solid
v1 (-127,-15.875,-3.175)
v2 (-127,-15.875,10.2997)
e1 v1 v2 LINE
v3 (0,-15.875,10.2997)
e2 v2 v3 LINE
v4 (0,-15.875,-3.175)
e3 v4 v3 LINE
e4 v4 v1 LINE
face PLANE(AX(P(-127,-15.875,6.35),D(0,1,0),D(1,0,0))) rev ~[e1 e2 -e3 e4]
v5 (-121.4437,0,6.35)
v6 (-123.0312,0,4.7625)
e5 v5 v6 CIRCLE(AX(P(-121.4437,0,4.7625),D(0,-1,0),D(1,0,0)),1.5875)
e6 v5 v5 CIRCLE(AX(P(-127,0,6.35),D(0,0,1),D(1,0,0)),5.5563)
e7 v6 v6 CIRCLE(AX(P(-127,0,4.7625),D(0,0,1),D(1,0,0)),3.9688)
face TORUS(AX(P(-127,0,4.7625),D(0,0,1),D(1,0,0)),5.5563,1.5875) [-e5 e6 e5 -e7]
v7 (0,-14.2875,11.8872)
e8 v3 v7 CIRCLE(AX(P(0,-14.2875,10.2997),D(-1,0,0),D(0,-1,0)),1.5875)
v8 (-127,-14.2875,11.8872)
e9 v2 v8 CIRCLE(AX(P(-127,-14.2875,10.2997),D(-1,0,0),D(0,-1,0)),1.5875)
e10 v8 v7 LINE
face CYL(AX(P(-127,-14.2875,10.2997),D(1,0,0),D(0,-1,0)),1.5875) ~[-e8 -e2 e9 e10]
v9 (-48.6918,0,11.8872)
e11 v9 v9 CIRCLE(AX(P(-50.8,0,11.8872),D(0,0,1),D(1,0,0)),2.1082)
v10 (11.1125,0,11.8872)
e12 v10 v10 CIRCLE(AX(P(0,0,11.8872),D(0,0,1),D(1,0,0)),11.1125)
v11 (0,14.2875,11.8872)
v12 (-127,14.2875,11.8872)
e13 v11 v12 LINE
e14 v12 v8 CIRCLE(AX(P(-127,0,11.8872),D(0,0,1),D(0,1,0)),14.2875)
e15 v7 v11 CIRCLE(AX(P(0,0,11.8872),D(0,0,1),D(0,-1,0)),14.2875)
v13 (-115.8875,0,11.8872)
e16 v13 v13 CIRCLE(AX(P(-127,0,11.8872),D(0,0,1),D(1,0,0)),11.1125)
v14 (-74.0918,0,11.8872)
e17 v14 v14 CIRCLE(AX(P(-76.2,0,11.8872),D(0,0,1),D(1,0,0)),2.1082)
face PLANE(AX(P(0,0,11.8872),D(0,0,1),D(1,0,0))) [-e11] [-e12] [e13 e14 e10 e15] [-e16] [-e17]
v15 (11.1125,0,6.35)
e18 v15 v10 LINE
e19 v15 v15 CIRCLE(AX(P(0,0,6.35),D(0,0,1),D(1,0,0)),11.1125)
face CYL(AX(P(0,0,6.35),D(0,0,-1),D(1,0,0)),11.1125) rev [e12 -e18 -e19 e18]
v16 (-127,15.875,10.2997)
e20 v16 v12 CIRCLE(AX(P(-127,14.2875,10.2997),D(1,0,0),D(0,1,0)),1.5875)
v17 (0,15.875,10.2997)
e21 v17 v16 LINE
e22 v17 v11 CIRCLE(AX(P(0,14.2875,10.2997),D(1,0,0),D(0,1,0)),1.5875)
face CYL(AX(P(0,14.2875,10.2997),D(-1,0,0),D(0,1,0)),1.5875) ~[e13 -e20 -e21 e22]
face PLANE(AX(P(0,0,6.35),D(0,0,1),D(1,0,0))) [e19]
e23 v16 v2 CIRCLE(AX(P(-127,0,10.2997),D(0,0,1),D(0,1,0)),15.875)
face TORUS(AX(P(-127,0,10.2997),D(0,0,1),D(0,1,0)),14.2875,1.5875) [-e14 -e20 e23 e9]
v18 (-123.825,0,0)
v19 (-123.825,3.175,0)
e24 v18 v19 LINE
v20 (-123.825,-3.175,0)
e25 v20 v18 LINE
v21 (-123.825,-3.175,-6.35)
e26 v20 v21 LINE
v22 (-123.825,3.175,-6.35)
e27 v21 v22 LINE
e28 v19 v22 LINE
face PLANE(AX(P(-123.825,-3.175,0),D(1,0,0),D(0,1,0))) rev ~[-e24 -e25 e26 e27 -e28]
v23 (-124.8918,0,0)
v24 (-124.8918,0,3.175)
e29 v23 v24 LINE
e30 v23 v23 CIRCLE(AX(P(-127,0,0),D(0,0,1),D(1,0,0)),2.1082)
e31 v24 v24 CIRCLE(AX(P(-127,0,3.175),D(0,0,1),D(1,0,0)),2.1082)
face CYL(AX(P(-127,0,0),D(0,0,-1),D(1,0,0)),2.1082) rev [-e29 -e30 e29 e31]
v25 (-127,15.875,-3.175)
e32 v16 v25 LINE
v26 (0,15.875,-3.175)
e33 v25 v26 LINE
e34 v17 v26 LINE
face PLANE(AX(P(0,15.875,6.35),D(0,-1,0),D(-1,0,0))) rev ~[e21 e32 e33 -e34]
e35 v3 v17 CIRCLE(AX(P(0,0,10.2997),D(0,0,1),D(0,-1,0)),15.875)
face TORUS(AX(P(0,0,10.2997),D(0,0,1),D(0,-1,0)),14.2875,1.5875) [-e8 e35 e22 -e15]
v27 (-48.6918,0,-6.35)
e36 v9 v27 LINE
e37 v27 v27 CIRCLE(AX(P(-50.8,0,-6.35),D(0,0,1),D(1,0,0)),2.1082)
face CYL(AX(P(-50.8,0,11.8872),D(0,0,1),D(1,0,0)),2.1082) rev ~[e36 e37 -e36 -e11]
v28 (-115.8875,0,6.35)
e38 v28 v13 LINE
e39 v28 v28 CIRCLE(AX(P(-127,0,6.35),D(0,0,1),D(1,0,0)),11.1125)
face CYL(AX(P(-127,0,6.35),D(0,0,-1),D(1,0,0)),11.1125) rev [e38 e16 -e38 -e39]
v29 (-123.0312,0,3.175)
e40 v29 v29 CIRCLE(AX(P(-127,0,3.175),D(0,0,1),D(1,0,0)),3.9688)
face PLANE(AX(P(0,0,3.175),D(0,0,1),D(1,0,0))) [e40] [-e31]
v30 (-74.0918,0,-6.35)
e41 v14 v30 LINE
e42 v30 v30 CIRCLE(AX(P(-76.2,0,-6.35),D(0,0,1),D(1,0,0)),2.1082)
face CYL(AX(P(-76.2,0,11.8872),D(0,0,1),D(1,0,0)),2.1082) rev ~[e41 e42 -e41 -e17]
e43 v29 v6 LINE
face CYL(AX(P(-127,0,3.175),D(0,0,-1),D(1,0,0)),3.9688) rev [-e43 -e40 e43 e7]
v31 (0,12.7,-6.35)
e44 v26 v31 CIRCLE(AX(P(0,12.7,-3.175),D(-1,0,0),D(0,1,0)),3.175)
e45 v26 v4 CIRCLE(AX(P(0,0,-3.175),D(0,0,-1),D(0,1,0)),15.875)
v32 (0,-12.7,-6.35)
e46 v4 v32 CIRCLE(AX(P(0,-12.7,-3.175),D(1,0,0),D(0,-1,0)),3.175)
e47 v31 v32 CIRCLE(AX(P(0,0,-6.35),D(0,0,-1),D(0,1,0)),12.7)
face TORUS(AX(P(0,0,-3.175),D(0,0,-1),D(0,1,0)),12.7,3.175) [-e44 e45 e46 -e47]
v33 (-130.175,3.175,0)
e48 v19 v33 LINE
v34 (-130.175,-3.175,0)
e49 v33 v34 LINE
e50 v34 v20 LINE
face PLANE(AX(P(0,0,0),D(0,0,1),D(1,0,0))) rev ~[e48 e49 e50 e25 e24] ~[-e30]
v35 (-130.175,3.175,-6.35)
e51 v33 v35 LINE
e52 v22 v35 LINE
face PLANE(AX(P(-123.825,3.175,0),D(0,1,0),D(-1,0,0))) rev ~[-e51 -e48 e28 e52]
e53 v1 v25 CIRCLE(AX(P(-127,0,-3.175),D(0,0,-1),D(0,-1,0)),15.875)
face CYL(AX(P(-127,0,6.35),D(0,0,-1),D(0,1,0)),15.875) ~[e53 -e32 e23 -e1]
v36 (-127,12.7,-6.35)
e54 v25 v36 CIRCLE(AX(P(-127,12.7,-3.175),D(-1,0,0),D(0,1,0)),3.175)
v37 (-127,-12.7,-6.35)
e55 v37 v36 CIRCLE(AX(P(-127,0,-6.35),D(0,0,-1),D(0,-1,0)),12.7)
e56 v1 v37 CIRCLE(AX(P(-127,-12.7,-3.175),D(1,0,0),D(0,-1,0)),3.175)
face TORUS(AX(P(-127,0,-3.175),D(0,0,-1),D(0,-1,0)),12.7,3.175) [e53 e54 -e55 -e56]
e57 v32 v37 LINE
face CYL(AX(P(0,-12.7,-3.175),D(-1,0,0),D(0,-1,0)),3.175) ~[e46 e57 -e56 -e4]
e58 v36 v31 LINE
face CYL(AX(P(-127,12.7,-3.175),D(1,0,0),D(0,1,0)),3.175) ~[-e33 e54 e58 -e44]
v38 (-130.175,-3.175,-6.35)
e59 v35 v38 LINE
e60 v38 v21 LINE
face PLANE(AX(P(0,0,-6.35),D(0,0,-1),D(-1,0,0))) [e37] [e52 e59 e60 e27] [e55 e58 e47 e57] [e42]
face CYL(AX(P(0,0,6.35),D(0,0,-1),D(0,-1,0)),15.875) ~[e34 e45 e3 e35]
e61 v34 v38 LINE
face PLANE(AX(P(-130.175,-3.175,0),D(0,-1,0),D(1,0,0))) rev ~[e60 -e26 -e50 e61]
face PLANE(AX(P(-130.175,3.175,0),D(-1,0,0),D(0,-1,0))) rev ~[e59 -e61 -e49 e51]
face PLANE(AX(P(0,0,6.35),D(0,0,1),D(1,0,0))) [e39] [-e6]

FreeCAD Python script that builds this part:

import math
import FreeCAD as App
import Part
import Sketcher

V = App.Vector
Q = App.Units.Quantity


def edges_at(feature, points):
    """Names of the edges that pass closest to the given points."""
    edges = feature.Shape.Edges
    near = lambda p: min(range(len(edges)), key=lambda i: edges[i].distToShape(Part.Vertex(*p))[0])
    return sorted({f"Edge{near(p) + 1}" for p in points})


def add_polygon(sketch, points):
    """Adds a closed chain of lines whose ends are joined by coincident constraints."""
    first, n = sketch.GeometryCount, len(points)
    for a, b in zip(points, points[1:] + points[:1]):
        sketch.addGeometry(Part.LineSegment(App.Vector(*a, 0), App.Vector(*b, 0)), False)
    for i in range(n):
        sketch.addConstraint(Sketcher.Constraint("Coincident", first + i, 2, first + (i + 1) % n, 1))

doc = App.newDocument("Part")
body = doc.addObject("PartDesign::Body", "Body")

sketch1 = body.newObject("Sketcher::SketchObject", "Sketch")
sketch1.AttachmentSupport = (doc.getObject("XY_Plane"), [""])
sketch1.MapMode = "FlatFace"
sketch1.addGeometry([
    Part.ArcOfCircle(Part.Circle(V(0, 0, 0), V(0, 0, 1), 15.9), math.radians(-90), math.radians(90)),
    Part.LineSegment(V(0, 15.9, 0), V(-127, 15.9, 0)),
    Part.ArcOfCircle(Part.Circle(V(-127, 0, 0), V(0, 0, 1), 15.9), math.radians(90), math.radians(270)),
    Part.LineSegment(V(-127, -15.9, 0), V(0, -15.9, 0)),
    Part.Circle(V(-127, 0, 0), V(0, 0, 1), 2.1),
], False)
sketch1.addConstraint([
    Sketcher.Constraint("Tangent", 0, 2, 1, 1),
    Sketcher.Constraint("Tangent", 1, 2, 2, 1),
    Sketcher.Constraint("Tangent", 2, 2, 3, 1),
    Sketcher.Constraint("Tangent", 3, 2, 0, 1),
    Sketcher.Constraint("Horizontal", 1),
    Sketcher.Constraint("Horizontal", 3),
    Sketcher.Constraint("Coincident", 0, 3, -1, 1),
    Sketcher.Constraint("Coincident", 4, 3, 2, 3),
    Sketcher.Constraint("DistanceX", 1, 2, 1, 1, Q("5 in")),
    Sketcher.Constraint("Diameter", 4, Q("0.166 in")),
    Sketcher.Constraint("Radius", 0, Q("0.625 in")),
])
pad1 = body.newObject("PartDesign::Pad", "Pad")
pad1.Profile = sketch1
pad1.Length = Q("0.125 in")

sketch2 = body.newObject("Sketcher::SketchObject", "Sketch001")
sketch2.AttachmentSupport = (doc.getObject("XY_Plane"), [""])
sketch2.MapMode = "FlatFace"
sketch2.addGeometry(Part.LineSegment(V(0, -16, 0), V(-127, -16, 0)), False)
sketch2.addGeometry(Part.ArcOfCircle(Part.Circle(V(-127, 0, 0), V(0, 0, 1), 16), math.radians(90), math.radians(270)), False)
sketch2.addGeometry(Part.LineSegment(V(-127, 16, 0), V(0, 16, 0)), False)
sketch2.addGeometry(Part.ArcOfCircle(Part.Circle(V(0, 0, 0), V(0, 0, 1), 16), math.radians(-90), math.radians(90)), False)
add_polygon(sketch2, [(-130, 3), (-130, -3), (-124, -3), (-124, 3)])
sketch2.addConstraint([
    Sketcher.Constraint("Tangent", 0, 2, 1, 2),
    Sketcher.Constraint("Tangent", 1, 1, 2, 1),
    Sketcher.Constraint("Tangent", 2, 2, 3, 2),
    Sketcher.Constraint("Tangent", 3, 1, 0, 1),
    Sketcher.Constraint("Horizontal", 0),
    Sketcher.Constraint("Horizontal", 2),
    Sketcher.Constraint("Vertical", 4),
    Sketcher.Constraint("Horizontal", 5),
    Sketcher.Constraint("Vertical", 6),
    Sketcher.Constraint("Horizontal", 7),
    Sketcher.Constraint("Coincident", 3, 3, -1, 1),
    Sketcher.Constraint("Equal", 7, 4),
    Sketcher.Constraint("DistanceX", 5, 1, 5, 2, Q("0.25 in")),
    Sketcher.Constraint("DistanceX", 0, 2, 0, 1, Q("5 in")),
    Sketcher.Constraint("Radius", 1, Q("0.625 in")),
    Sketcher.Constraint("DistanceY", 0, 2, 4, 2, Q("0.5 in")),
    Sketcher.Constraint("DistanceX", 4, 2, -1, 1, Q("5.125 in")),
])
pad2 = body.newObject("PartDesign::Pad", "Pad001")
pad2.Profile = sketch2
pad2.Length = Q("0.25 in")
pad2.Reversed = True
doc.recompute()

fillet = body.newObject("PartDesign::Fillet", "Fillet")
fillet.Base = (pad2, edges_at(pad2, [
    (15.875, 0, -6.35),
    (-63.5, -15.875, -6.35),
    (-142.875, 0, -6.35),
    (-63.5, 15.875, -6.35),
]))
fillet.Radius = Q("0.125 in")

sketch3 = body.newObject("Sketcher::SketchObject", "Sketch002")
sketch3.AttachmentSupport = (doc.getObject("XY_Plane"), [""])
sketch3.MapMode = "FlatFace"
sketch3.AttachmentOffset = App.Placement(V(0, 0, 0.125 * 25.4), App.Rotation())
sketch3.addGeometry([
    Part.LineSegment(V(0, 15.9, 0), V(-127, 15.9, 0)),
    Part.ArcOfCircle(Part.Circle(V(-127, 0, 0), V(0, 0, 1), 15.9), math.radians(90), math.radians(270)),
    Part.LineSegment(V(-127, -15.9, 0), V(0, -15.9, 0)),
    Part.ArcOfCircle(Part.Circle(V(0, 0, 0), V(0, 0, 1), 15.9), math.radians(-90), math.radians(90)),
    Part.Circle(V(-127, 0, 0), V(0, 0, 1), 4),
], False)
sketch3.addConstraint([
    Sketcher.Constraint("Tangent", 0, 2, 1, 1),
    Sketcher.Constraint("Tangent", 1, 2, 2, 1),
    Sketcher.Constraint("Tangent", 2, 2, 3, 1),
    Sketcher.Constraint("Tangent", 3, 2, 0, 1),
    Sketcher.Constraint("Horizontal", 0),
    Sketcher.Constraint("Horizontal", 2),
    Sketcher.Constraint("Coincident", 3, 3, -1, 1),
    Sketcher.Constraint("Coincident", 4, 3, 1, 3),
    Sketcher.Constraint("Diameter", 4, Q("0.3125 in")),
    Sketcher.Constraint("DistanceX", 0, 2, 0, 1, Q("5 in")),
    Sketcher.Constraint("Radius", 1, Q("0.625 in")),
])
pad3 = body.newObject("PartDesign::Pad", "Pad002")
pad3.Profile = sketch3
pad3.Length = Q("0.125 in")

sketch4 = body.newObject("Sketcher::SketchObject", "Sketch003")
sketch4.AttachmentSupport = (doc.getObject("XY_Plane"), [""])
sketch4.MapMode = "FlatFace"
sketch4.AttachmentOffset = App.Placement(V(0, 0, 0.25 * 25.4), App.Rotation())
sketch4.addGeometry([
    Part.ArcOfCircle(Part.Circle(V(-127, 0, 0), V(0, 0, 1), 16), math.radians(90), math.radians(270)),
    Part.LineSegment(V(-127, -16, 0), V(0, -16, 0)),
    Part.ArcOfCircle(Part.Circle(V(0, 0, 0), V(0, 0, 1), 16), math.radians(-90), math.radians(90)),
    Part.LineSegment(V(0, 16, 0), V(-127, 16, 0)),
    Part.Circle(V(-127, 0, 0), V(0, 0, 1), 11),
    Part.Circle(V(0, 0, 0), V(0, 0, 1), 11),
], False)
sketch4.addConstraint([
    Sketcher.Constraint("Tangent", 0, 2, 1, 1),
    Sketcher.Constraint("Tangent", 1, 2, 2, 1),
    Sketcher.Constraint("Tangent", 2, 2, 3, 1),
    Sketcher.Constraint("Tangent", 3, 2, 0, 1),
    Sketcher.Constraint("Horizontal", 1),
    Sketcher.Constraint("Horizontal", 3),
    Sketcher.Constraint("Coincident", 2, 3, -1, 1),
    Sketcher.Constraint("Coincident", 5, 3, -1, 1),
    Sketcher.Constraint("Coincident", 4, 3, 0, 3),
    Sketcher.Constraint("Equal", 4, 5),
    Sketcher.Constraint("Diameter", 4, Q("0.875 in")),
    Sketcher.Constraint("DistanceX", 1, 1, 1, 2, Q("5 in")),
    Sketcher.Constraint("Radius", 0, Q("0.625 in")),
])
pad4 = body.newObject("PartDesign::Pad", "Pad003")
pad4.Profile = sketch4
pad4.Length = Q("0.218 in")

sketch5 = body.newObject("Sketcher::SketchObject", "Sketch004")
sketch5.AttachmentSupport = (doc.getObject("XY_Plane"), [""])
sketch5.MapMode = "FlatFace"
sketch5.AttachmentOffset = App.Placement(V(0, 0, 0.468 * 25.4), App.Rotation())
sketch5.addGeometry([
    Part.Circle(V(-76.2, 0, 0), V(0, 0, 1), 2.1),
    Part.Circle(V(-50.8, 0, 0), V(0, 0, 1), 2.1),
], False)
sketch5.addConstraint([
    Sketcher.Constraint("Equal", 0, 1),
    Sketcher.Constraint("PointOnObject", 0, 3, -1),
    Sketcher.Constraint("PointOnObject", 1, 3, -1),
    Sketcher.Constraint("Diameter", 0, Q("0.166 in")),
    Sketcher.Constraint("DistanceX", 1, 3, -1, 1, Q("2 in")),
    Sketcher.Constraint("DistanceX", 0, 3, -1, 1, Q("3 in")),
])
pocket1 = body.newObject("PartDesign::Pocket", "Pocket")
pocket1.Profile = sketch5
pocket1.Length = Q("1 in")
doc.recompute()

fillet2 = body.newObject("PartDesign::Fillet", "Fillet001")
fillet2.Base = (pocket1, edges_at(pocket1, [
    (-142.875, 0, 11.887),
    (-63.5, -15.875, 11.887),
    (15.875, 0, 11.887),
    (-63.5, 15.875, 11.887),
]))
fillet2.Radius = Q("0.0625 in")
doc.recompute()

fillet3 = body.newObject("PartDesign::Fillet", "Fillet002")
fillet3.Base = (fillet2, edges_at(fillet2, [(-130.969, 0, 6.35)]))
fillet3.Radius = Q("0.0625 in")

doc.recompute()
